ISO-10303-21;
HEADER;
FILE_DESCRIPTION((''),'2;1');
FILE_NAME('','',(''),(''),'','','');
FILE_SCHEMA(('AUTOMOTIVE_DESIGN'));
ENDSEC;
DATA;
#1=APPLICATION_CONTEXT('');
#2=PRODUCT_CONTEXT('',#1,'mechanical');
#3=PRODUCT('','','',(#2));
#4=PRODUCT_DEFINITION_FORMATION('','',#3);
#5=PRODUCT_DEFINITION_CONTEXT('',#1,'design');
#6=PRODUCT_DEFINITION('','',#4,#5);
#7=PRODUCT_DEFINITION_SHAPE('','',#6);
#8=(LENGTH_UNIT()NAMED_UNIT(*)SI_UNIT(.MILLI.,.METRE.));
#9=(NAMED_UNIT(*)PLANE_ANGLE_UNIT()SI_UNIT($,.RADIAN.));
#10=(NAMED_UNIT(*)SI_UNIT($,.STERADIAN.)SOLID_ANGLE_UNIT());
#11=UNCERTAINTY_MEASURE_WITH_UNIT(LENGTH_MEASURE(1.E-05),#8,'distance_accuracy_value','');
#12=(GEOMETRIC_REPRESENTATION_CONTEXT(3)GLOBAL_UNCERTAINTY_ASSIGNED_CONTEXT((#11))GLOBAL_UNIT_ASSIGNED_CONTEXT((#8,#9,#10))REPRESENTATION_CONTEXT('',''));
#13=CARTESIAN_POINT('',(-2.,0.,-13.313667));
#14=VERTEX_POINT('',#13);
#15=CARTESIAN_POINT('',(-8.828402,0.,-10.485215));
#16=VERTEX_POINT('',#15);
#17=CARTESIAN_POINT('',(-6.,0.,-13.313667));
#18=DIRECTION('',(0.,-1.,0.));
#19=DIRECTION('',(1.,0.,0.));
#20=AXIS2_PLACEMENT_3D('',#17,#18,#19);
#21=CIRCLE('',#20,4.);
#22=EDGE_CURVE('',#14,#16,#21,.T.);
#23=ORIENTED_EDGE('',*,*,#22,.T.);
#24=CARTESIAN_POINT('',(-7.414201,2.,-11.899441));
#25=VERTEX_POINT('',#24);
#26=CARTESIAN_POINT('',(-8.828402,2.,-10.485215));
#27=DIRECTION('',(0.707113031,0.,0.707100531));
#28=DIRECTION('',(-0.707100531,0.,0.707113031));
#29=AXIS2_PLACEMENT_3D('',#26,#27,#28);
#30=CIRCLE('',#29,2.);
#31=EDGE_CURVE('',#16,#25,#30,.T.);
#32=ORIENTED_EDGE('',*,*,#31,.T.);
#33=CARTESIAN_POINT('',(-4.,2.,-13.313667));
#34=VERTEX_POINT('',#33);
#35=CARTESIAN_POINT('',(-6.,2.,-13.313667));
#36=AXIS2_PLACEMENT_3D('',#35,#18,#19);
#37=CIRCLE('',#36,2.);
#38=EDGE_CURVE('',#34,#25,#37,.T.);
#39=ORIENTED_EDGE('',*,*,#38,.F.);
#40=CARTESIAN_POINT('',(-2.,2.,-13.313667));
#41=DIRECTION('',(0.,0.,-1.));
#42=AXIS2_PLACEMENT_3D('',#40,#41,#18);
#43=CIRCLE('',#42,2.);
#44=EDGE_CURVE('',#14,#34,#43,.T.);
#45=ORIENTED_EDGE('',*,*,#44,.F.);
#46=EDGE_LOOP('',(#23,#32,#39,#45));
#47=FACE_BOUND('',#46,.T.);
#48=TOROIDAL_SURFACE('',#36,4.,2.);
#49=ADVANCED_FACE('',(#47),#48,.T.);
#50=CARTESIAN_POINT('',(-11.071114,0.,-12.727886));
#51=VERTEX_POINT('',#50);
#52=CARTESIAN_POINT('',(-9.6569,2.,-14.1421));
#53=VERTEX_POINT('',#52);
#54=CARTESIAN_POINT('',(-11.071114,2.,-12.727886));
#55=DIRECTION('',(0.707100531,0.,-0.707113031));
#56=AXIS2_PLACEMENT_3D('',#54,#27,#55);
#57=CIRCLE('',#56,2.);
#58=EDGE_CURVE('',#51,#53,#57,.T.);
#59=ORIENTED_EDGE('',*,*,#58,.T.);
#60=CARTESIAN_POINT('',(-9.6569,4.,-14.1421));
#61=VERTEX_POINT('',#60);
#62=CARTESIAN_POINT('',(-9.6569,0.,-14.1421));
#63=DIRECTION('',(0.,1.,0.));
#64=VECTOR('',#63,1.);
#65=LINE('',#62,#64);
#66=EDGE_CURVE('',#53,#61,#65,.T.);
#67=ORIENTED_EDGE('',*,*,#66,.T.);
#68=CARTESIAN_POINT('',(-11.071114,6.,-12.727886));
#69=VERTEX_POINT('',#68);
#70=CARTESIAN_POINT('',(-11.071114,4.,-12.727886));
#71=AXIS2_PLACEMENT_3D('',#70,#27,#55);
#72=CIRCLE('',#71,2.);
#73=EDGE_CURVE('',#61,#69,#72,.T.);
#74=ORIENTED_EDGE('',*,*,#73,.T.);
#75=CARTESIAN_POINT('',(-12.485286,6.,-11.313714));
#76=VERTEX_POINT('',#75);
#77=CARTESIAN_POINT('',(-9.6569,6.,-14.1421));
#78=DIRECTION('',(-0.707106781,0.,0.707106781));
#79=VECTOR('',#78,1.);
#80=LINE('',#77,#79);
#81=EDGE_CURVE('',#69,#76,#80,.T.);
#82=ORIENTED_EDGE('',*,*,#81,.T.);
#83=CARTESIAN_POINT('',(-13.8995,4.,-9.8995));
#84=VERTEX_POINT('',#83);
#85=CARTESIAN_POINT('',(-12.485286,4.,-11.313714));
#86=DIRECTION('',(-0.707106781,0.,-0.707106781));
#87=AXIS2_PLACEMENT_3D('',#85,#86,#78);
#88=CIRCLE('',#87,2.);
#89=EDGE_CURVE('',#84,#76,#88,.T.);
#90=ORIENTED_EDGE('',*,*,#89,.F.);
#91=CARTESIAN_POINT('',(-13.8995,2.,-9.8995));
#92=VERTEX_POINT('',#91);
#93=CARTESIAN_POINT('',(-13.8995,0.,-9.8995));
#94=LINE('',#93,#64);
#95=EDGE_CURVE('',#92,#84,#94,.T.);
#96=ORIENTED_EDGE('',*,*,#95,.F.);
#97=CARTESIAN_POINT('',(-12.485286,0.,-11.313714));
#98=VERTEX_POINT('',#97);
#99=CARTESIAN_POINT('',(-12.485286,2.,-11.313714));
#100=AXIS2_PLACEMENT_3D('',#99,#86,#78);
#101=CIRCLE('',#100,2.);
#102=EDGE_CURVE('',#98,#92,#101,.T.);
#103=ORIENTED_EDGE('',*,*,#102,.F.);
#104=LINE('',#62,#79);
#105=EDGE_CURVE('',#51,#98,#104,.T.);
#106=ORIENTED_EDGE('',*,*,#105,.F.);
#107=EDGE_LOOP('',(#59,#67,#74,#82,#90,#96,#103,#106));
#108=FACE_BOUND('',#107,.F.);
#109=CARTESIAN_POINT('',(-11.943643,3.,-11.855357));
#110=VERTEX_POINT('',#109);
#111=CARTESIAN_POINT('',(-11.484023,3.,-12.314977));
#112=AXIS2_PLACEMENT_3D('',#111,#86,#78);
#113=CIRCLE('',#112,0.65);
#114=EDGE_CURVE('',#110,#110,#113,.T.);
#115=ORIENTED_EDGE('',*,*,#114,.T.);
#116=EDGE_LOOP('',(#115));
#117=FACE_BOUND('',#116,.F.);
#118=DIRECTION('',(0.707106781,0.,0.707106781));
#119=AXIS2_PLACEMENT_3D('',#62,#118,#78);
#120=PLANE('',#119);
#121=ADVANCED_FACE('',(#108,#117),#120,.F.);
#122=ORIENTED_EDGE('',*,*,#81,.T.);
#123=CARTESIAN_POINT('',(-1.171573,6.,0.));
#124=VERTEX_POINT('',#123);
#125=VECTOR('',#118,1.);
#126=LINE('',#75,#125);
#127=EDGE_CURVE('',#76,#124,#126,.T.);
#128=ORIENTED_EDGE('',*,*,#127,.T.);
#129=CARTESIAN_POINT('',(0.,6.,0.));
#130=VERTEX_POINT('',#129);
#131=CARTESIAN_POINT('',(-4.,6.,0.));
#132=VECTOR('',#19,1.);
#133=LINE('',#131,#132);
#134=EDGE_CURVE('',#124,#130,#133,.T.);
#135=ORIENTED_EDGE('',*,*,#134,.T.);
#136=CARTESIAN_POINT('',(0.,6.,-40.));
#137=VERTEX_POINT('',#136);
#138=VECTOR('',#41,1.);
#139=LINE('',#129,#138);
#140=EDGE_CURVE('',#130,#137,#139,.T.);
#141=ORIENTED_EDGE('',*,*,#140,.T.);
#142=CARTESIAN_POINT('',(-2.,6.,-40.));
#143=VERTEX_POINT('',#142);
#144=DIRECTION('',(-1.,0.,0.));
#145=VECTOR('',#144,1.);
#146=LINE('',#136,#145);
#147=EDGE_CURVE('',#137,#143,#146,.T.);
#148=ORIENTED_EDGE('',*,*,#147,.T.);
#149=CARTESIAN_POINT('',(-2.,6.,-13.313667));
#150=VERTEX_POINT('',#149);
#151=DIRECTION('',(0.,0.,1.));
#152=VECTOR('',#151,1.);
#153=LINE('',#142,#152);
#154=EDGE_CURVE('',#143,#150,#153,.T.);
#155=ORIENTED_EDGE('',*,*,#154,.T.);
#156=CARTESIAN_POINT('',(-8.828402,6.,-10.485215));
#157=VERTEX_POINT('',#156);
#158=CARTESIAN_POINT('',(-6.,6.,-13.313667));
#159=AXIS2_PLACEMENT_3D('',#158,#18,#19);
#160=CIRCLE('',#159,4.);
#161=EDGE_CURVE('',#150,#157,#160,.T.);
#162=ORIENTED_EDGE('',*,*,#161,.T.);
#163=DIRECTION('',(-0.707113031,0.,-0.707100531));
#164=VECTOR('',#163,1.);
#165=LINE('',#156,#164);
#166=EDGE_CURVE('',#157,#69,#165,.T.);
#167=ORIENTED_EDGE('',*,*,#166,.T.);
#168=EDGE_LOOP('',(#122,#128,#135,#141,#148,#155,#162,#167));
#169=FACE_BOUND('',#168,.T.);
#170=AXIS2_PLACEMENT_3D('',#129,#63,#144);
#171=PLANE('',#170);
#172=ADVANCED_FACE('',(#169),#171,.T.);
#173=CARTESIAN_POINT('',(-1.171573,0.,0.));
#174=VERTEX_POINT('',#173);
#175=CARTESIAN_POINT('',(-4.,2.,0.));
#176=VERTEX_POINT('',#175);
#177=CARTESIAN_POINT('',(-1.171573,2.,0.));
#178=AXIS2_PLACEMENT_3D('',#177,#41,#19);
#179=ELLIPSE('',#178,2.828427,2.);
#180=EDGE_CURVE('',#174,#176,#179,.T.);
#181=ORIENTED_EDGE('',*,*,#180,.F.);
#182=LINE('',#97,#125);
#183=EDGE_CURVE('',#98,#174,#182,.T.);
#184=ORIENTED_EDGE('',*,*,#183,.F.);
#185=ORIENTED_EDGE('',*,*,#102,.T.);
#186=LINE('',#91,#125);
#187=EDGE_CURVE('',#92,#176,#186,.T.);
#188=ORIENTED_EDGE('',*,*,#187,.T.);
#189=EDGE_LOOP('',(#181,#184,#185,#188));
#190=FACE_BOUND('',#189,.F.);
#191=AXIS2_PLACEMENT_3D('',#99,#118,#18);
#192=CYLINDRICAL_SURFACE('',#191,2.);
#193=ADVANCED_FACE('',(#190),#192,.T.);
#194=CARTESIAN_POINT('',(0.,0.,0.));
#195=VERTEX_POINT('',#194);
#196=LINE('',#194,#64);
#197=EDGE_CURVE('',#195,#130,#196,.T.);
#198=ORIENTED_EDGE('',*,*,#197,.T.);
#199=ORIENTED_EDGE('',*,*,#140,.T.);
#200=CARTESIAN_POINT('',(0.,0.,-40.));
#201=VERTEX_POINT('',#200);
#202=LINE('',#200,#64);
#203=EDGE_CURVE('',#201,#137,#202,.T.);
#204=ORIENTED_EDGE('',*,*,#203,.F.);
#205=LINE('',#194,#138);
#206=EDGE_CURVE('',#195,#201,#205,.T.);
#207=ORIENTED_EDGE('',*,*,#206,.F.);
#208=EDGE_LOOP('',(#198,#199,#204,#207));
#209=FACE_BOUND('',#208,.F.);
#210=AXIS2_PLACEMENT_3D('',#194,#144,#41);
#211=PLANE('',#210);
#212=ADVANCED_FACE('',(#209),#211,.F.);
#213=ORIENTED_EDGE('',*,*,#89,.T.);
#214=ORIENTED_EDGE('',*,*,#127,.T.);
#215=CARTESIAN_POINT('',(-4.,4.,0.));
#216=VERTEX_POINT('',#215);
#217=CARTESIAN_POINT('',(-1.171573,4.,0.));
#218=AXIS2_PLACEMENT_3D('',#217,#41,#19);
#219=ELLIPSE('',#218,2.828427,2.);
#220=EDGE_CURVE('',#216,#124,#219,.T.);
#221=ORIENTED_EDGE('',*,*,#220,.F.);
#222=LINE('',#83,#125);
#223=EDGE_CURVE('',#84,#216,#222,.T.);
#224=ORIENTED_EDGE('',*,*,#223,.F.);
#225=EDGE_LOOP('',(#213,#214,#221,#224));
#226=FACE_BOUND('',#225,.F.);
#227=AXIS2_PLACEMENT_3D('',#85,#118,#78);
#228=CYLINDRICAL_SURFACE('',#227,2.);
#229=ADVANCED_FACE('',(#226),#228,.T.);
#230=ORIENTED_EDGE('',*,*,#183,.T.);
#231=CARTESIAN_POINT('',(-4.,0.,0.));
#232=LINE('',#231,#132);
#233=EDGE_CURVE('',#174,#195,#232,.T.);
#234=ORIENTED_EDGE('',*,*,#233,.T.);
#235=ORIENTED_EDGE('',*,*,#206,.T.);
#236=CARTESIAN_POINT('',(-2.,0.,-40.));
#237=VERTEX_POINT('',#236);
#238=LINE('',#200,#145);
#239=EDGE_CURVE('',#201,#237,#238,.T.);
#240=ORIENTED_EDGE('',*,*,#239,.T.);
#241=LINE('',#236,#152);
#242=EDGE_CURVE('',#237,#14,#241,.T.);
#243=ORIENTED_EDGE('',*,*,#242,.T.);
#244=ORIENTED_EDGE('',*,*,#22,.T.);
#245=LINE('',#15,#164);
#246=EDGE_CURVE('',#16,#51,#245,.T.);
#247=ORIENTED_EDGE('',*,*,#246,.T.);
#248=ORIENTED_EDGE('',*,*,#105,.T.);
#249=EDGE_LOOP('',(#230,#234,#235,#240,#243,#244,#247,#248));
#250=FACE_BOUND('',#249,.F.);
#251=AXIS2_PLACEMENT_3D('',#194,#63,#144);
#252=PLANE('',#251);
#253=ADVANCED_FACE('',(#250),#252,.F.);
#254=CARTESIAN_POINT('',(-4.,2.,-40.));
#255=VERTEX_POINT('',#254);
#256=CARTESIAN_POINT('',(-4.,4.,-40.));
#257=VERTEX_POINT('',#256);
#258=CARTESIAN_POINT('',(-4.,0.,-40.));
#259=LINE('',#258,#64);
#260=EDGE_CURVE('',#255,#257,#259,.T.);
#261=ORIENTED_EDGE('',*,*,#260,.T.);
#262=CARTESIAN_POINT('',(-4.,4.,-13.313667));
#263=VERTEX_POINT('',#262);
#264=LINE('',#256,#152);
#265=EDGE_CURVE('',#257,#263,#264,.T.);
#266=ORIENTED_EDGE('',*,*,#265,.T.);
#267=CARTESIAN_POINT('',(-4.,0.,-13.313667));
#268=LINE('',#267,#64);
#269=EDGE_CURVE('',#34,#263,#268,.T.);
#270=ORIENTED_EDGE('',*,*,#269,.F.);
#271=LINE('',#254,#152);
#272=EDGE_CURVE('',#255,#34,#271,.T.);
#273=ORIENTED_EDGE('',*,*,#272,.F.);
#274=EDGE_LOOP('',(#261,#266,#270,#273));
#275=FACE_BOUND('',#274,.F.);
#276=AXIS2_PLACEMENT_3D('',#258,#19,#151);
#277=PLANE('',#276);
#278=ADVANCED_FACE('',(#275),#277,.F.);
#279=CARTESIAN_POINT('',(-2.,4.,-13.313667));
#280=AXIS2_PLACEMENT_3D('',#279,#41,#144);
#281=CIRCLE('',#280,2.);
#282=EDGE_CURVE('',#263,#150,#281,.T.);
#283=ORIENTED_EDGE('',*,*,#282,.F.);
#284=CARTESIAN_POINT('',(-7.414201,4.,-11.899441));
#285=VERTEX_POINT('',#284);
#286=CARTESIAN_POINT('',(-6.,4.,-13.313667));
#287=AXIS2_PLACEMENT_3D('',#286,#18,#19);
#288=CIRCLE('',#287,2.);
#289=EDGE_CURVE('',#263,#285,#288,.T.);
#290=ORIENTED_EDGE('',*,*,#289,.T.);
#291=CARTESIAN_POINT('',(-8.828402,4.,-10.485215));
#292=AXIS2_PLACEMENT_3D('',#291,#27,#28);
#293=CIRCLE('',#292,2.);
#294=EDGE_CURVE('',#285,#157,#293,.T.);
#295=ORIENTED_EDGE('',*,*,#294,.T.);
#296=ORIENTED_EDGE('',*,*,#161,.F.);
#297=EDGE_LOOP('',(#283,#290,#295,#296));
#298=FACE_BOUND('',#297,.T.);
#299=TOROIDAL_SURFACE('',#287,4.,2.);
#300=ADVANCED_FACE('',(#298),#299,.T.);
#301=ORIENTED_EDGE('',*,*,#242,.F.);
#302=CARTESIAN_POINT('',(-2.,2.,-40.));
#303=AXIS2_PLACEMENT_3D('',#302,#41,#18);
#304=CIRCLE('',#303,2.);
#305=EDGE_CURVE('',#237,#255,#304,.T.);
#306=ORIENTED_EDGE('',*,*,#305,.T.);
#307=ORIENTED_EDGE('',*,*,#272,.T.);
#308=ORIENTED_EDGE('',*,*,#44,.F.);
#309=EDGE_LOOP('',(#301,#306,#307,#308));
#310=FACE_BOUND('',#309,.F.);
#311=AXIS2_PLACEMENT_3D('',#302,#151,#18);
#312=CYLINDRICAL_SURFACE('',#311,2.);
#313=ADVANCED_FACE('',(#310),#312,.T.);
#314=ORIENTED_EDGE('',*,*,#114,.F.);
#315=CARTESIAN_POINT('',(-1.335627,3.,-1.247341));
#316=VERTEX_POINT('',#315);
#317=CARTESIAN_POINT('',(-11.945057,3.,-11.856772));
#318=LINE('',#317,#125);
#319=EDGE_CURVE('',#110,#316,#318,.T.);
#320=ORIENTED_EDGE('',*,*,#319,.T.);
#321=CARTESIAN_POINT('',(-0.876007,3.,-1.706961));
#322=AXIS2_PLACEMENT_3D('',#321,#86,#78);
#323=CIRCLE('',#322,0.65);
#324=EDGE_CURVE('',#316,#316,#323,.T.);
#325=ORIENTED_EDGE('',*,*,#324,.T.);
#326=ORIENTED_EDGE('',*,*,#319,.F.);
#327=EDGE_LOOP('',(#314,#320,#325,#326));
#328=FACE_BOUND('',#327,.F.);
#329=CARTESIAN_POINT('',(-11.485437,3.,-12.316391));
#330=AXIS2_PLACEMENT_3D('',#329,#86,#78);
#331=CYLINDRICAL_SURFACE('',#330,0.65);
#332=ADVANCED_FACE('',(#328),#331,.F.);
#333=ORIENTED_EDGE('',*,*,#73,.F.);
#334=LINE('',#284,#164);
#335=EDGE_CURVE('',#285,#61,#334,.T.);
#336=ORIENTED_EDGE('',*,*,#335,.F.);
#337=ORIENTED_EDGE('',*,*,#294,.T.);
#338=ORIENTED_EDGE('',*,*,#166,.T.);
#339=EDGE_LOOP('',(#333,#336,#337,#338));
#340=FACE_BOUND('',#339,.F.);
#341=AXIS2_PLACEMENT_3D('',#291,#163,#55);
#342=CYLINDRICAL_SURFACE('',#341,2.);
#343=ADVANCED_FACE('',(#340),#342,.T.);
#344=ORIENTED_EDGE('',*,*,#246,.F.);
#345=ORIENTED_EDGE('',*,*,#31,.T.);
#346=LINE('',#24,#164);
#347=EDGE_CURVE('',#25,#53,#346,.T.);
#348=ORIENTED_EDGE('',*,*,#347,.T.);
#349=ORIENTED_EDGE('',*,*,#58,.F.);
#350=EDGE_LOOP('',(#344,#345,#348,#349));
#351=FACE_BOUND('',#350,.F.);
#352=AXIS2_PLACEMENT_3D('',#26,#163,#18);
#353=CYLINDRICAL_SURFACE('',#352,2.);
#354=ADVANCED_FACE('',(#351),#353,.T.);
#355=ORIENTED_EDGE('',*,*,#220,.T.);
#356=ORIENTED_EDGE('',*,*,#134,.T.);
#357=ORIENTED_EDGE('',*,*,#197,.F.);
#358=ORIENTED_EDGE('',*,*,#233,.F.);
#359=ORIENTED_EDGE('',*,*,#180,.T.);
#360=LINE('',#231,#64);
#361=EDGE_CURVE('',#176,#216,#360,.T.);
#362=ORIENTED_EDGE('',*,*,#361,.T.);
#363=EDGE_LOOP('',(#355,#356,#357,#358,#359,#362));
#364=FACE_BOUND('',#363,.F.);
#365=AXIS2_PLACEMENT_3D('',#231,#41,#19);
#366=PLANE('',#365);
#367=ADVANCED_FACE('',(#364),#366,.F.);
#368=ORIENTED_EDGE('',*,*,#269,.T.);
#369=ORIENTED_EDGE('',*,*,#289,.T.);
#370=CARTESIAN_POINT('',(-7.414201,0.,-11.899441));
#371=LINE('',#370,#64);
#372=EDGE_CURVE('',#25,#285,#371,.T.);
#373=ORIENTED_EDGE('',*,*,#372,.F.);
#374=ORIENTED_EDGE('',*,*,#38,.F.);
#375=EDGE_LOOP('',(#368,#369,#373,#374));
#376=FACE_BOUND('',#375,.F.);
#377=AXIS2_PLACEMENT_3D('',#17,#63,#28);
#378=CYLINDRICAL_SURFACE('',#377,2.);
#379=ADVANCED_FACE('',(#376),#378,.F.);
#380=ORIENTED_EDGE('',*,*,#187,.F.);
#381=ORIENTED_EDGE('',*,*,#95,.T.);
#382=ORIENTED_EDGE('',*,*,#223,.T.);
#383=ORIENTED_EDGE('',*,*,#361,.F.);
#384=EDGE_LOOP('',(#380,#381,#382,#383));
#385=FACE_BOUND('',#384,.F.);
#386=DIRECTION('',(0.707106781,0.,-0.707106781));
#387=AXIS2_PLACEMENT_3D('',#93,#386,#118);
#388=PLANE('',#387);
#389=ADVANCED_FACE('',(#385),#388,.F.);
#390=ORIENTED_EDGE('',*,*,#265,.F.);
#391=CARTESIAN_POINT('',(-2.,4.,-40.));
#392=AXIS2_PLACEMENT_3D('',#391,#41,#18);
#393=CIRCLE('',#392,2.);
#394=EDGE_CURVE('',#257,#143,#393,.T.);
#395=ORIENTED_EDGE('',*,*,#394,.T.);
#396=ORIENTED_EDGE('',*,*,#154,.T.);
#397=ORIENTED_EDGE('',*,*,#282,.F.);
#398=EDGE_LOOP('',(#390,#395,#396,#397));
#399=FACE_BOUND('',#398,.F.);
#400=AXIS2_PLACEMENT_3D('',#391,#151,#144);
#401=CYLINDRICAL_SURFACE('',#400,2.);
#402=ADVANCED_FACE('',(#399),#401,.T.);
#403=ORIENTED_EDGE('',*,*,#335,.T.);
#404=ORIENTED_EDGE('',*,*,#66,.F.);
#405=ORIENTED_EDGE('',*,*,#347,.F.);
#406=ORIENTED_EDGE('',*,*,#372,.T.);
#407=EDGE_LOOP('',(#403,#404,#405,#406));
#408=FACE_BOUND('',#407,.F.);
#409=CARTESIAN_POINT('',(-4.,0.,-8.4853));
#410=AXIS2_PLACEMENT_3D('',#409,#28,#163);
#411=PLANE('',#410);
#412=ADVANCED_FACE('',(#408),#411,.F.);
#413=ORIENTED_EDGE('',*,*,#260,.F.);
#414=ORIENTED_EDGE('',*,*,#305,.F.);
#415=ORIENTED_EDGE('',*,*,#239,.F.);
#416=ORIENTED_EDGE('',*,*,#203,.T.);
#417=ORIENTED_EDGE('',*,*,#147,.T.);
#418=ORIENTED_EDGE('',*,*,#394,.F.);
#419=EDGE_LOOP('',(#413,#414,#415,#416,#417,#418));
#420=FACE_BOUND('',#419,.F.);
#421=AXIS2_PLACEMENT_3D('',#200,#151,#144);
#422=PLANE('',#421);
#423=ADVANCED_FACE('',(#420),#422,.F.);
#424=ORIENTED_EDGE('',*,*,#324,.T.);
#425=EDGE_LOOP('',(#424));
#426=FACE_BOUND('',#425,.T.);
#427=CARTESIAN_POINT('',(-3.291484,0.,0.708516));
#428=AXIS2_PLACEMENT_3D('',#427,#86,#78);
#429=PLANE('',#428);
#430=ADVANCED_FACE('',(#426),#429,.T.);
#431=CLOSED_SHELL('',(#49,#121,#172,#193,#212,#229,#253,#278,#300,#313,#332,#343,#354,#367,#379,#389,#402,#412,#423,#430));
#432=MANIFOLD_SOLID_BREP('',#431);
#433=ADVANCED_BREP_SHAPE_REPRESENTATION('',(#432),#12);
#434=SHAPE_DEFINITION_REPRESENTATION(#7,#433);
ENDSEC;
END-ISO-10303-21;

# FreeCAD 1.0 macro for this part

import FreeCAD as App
import Part
import Sketcher

V = App.Vector
Q = App.Units.Quantity


def edges_at(feature, points):
    """Names of the edges that pass closest to the given points."""
    edges = feature.Shape.Edges
    near = lambda p: min(range(len(edges)), key=lambda i: edges[i].distToShape(Part.Vertex(*p))[0])
    return sorted({f"Edge{near(p) + 1}" for p in points})

doc = App.newDocument("Part")
body = doc.addObject("PartDesign::Body", "Body")

# Sketch on XZ plane
sketch1 = doc.addObject("Sketcher::SketchObject", "Sketch")
body.addObject(sketch1)
sketch1.AttachmentSupport = (doc.XZ_Plane, [""])
sketch1.MapMode = "FlatFace"
sketch1.addGeometry([
    Part.LineSegment(V(-4, 0, 0), V(0, 0, 0)),  # 0
    Part.LineSegment(V(0, 0, 0), V(0, -40, 0)),  # 1
    Part.LineSegment(V(0, -40, 0), V(-4, -40, 0)),  # 2
    Part.LineSegment(V(-4, -40, 0), V(-4, -8.4853, 0)),  # 3
    Part.LineSegment(V(-4, -8.4853, 0), V(-9.6569, -14.1421, 0)),  # 4
    Part.LineSegment(V(-9.6569, -14.1421, 0), V(-13.8995, -9.8995, 0)),  # 5
    Part.LineSegment(V(-13.8995, -9.8995, 0), V(-4, 0, 0)),  # 6
], False)
sketch1.addConstraint([
    Sketcher.Constraint("Coincident", 0, 2, 1, 1),
    Sketcher.Constraint("Coincident", 1, 2, 2, 1),
    Sketcher.Constraint("Coincident", 2, 2, 3, 1),
    Sketcher.Constraint("Coincident", 3, 2, 4, 1),
    Sketcher.Constraint("Coincident", 4, 2, 5, 1),
    Sketcher.Constraint("Coincident", 5, 2, 6, 1),
    Sketcher.Constraint("Coincident", 6, 2, 0, 1),
    Sketcher.Constraint("Horizontal", 0),
    Sketcher.Constraint("Vertical", 1),
    Sketcher.Constraint("Horizontal", 2),
    Sketcher.Constraint("Vertical", 3),
    Sketcher.Constraint("Coincident", 0, 2, -1, 1),
    Sketcher.Constraint("Perpendicular", 4, 5),
    Sketcher.Constraint("Perpendicular", 5, 6),
    Sketcher.Constraint("Vertical", 3, 2, 6, 2),
    Sketcher.Constraint("DistanceX", 0, 1, 0, 2, Q("4 mm")),
    Sketcher.Constraint("DistanceY", 1, 2, 1, 1, Q("40 mm")),
    Sketcher.Constraint("Angle", 6, Q("45 deg")),
    Sketcher.Constraint("Distance", 4, Q("8 mm")),
    Sketcher.Constraint("Distance", 5, Q("6 mm")),
])
pad1 = doc.addObject("PartDesign::Pad", "Pad")
body.addObject(pad1)
pad1.Profile = sketch1
pad1.Length = 6
pad1.Reversed = True

# Sketch on an angled plane
sketch2 = doc.addObject("Sketcher::SketchObject", "Sketch001")
body.addObject(sketch2)
sketch2.Placement = App.Placement(V(-13.8995, 0, -9.8995), App.Rotation(V(-0.707106781, 0, 0.707106781), V(0, 0.999999999, 0), V(-0.707106781, 0, -0.707106781), "ZXY"))
sketch2.addGeometry(Part.Circle(V(-3.416, 3, 0), V(0, 0, 1), 0.65), False)
sketch2.addConstraint([
    Sketcher.Constraint("Diameter", 0, Q("1.3 mm")),
    Sketcher.Constraint("DistanceY", -1, 1, 0, 3, Q("3 mm")),
    Sketcher.Constraint("DistanceX", 0, 3, -1, 1, Q("3.416 mm")),
])
pocket1 = doc.addObject("PartDesign::Pocket", "Pocket")
body.addObject(pocket1)
pocket1.Profile = sketch2
pocket1.Length = 15
doc.recompute()

fillet = doc.addObject("PartDesign::Fillet", "Fillet")
body.addObject(fillet)
fillet.Base = (pocket1, edges_at(pocket1, [(-4, 3, -8.485)]))
fillet.Radius = 2
doc.recompute()

fillet2 = doc.addObject("PartDesign::Fillet", "Fillet001")
body.addObject(fillet2)
fillet2.Base = (fillet, edges_at(fillet, [
    (-8.536, 6, -13.021),
    (-4, 6, -26.657),
    (-8.536, 0, -13.021),
    (-4, 0, -26.657),
    (-8.95, 6, -4.95),
    (-8.95, 0, -4.95),
]))
fillet2.Radius = 2

doc.recompute()
